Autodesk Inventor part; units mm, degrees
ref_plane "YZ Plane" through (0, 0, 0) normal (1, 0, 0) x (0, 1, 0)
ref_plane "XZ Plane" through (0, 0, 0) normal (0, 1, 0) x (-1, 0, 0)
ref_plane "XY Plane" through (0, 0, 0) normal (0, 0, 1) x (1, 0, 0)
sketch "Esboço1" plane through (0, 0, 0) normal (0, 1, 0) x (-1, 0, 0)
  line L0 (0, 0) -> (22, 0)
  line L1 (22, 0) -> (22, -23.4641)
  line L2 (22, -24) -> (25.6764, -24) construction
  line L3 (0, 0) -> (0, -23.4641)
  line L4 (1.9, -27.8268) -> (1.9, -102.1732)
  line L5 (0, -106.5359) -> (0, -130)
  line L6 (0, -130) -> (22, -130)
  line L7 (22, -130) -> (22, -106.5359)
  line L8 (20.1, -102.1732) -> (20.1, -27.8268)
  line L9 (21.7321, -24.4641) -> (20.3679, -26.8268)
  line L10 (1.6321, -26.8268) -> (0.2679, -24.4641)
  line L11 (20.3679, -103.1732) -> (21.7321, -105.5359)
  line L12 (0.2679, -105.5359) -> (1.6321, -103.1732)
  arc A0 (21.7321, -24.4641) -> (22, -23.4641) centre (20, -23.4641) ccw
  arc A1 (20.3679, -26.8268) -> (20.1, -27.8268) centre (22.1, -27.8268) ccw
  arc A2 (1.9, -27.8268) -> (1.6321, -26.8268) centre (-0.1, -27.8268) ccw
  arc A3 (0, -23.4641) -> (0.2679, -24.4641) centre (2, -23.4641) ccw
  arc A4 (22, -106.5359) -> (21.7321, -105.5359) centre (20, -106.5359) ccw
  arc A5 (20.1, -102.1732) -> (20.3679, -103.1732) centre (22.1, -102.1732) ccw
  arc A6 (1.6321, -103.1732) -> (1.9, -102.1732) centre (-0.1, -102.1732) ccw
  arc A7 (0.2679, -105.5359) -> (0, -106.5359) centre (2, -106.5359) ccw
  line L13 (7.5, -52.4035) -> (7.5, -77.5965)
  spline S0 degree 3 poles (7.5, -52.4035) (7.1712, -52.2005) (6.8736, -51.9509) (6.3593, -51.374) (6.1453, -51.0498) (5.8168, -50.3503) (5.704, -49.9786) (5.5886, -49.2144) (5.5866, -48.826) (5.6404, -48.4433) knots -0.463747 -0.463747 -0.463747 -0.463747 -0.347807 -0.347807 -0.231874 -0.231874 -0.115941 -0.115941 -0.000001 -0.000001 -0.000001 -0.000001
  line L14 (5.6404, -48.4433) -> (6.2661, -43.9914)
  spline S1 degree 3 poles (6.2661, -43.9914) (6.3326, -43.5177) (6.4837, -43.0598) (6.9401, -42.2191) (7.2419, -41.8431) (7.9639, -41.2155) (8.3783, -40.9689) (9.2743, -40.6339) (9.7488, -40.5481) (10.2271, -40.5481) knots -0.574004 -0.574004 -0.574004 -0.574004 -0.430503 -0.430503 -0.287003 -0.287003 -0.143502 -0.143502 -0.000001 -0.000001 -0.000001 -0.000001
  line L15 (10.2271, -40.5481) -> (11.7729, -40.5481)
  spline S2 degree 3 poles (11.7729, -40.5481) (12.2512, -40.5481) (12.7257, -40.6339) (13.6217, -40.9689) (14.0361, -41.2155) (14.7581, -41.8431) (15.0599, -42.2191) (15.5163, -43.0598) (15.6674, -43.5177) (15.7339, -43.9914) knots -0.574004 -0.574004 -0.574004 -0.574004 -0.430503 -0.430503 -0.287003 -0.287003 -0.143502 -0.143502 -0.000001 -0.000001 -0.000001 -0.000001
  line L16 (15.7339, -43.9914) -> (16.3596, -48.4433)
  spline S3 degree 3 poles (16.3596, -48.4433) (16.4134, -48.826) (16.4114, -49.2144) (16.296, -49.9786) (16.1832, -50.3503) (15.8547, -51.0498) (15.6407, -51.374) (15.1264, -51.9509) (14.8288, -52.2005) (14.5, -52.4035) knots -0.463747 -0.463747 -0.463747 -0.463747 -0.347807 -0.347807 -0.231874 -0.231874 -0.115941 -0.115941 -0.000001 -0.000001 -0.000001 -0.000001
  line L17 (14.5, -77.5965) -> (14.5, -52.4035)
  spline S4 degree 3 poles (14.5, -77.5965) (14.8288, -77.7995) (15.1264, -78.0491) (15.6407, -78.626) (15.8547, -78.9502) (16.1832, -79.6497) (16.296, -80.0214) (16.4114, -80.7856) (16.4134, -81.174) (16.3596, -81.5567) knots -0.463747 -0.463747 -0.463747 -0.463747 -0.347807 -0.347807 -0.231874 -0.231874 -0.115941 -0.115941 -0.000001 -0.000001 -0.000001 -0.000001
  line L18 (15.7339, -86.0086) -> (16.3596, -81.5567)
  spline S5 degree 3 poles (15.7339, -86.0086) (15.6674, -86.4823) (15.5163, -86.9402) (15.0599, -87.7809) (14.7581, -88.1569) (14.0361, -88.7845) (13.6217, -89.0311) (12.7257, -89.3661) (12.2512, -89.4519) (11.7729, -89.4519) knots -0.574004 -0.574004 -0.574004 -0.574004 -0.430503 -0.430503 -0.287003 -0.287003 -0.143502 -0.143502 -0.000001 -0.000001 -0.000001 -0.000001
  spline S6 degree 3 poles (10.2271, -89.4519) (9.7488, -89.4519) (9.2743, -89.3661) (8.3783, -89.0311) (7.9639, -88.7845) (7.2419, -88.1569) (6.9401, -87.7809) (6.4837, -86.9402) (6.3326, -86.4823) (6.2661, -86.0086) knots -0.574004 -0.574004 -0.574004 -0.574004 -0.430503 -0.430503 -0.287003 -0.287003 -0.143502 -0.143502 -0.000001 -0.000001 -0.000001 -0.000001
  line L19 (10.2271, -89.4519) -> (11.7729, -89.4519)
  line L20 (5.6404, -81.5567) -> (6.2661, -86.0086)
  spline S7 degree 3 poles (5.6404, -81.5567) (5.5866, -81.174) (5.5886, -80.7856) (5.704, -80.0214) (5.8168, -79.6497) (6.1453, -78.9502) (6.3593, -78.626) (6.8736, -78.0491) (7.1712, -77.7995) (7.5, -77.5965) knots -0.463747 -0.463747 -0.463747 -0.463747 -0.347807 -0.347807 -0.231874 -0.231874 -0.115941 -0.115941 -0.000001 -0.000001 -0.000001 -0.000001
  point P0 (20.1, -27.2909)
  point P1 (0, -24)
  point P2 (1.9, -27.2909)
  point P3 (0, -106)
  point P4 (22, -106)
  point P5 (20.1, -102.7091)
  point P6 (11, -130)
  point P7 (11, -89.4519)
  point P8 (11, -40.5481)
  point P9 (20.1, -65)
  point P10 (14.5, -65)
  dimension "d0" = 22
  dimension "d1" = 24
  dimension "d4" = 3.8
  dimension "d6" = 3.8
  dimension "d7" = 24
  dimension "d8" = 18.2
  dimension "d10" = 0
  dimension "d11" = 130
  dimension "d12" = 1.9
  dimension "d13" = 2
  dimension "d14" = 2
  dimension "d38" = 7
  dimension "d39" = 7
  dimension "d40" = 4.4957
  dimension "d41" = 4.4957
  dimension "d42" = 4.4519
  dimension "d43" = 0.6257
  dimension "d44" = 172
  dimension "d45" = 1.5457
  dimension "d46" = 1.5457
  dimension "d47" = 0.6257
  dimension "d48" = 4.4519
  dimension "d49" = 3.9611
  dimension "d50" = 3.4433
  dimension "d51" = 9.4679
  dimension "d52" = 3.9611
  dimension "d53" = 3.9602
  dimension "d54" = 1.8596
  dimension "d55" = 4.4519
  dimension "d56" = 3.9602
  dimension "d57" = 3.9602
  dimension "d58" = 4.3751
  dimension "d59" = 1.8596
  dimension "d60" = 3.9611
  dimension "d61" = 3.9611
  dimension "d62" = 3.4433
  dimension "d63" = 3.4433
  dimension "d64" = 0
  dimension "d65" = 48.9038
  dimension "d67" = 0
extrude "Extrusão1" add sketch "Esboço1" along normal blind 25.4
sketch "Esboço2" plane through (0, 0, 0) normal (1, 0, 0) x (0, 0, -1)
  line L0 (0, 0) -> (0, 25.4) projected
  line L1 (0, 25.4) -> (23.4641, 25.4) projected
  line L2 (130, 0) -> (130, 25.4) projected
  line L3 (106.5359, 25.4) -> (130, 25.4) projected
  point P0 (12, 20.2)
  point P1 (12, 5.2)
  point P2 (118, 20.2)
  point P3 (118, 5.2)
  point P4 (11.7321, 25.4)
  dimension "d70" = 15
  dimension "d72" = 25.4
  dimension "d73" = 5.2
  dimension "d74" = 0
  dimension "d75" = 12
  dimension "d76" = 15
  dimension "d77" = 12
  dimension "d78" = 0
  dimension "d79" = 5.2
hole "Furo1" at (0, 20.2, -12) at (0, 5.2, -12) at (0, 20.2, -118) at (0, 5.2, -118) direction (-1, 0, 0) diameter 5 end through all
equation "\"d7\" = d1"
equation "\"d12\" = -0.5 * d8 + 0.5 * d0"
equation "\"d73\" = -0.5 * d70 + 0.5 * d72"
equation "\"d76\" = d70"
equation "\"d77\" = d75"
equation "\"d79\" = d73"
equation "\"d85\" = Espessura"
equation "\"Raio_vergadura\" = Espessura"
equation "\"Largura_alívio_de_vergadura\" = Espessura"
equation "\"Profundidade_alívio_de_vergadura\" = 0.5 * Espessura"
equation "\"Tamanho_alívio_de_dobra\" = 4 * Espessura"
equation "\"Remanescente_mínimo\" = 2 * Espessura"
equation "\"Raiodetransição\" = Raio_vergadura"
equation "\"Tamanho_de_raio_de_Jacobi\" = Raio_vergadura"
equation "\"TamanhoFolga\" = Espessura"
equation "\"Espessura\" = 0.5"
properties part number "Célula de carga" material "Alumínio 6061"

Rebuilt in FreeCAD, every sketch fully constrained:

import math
import FreeCAD as App
import Part
import Sketcher
from FreeCAD import Vector

doc = App.newDocument("Part")
body = doc.addObject("PartDesign::Body", "Body")

sketch1 = body.newObject("Sketcher::SketchObject", "Sketch")
sketch1.AttachmentSupport = (doc.getObject("XZ_Plane"), [""])
sketch1.MapMode = "FlatFace"
sketch1.addGeometry(Part.LineSegment(Vector(-22, 0, 0), Vector(0, 0, 0)), False)
sketch1.addGeometry(Part.LineSegment(Vector(0, 0, 0), Vector(0, -23.4641, 0)), False)
sketch1.addGeometry(Part.ArcOfCircle(Part.Circle(Vector(-2, -23.4641, 0), Vector(0, 0, 1), 2), math.radians(-29.999295), math.radians(0)), False)
sketch1.addGeometry(Part.LineSegment(Vector(-0.2679, -24.4641, 0), Vector(-1.6321, -26.8268, 0)), False)
sketch1.addGeometry(Part.ArcOfCircle(Part.Circle(Vector(0.1, -27.8268, 0), Vector(0, 0, 1), 2), math.radians(150.000705), math.radians(180)), False)
sketch1.addGeometry(Part.LineSegment(Vector(-1.9, -27.8268, 0), Vector(-1.9, -102.1732, 0)), False)
sketch1.addGeometry(Part.ArcOfCircle(Part.Circle(Vector(0.1, -102.1732, 0), Vector(0, 0, 1), 2.000043), math.radians(180), math.radians(209.999295)), False)
sketch1.addGeometry(Part.LineSegment(Vector(-1.6321, -103.1732, 0), Vector(-0.2679, -105.5359, 0)), False)
sketch1.addGeometry(Part.ArcOfCircle(Part.Circle(Vector(-2, -106.5359, 0), Vector(0, 0, 1), 2.000043), math.radians(0), math.radians(29.999295)), False)
sketch1.addGeometry(Part.LineSegment(Vector(0, -106.5359, 0), Vector(0, -130, 0)), False)
sketch1.addGeometry(Part.LineSegment(Vector(0, -130, 0), Vector(-22, -130, 0)), False)
sketch1.addGeometry(Part.LineSegment(Vector(-22, -130, 0), Vector(-22, -106.5359, 0)), False)
sketch1.addGeometry(Part.ArcOfCircle(Part.Circle(Vector(-20, -106.5359, 0), Vector(0, 0, 1), 2), math.radians(150.000705), math.radians(180)), False)
sketch1.addGeometry(Part.LineSegment(Vector(-21.7321, -105.5359, 0), Vector(-20.3679, -103.1732, 0)), False)
sketch1.addGeometry(Part.ArcOfCircle(Part.Circle(Vector(-22.1, -102.1732, 0), Vector(0, 0, 1), 2), math.radians(-29.999295), math.radians(0)), False)
sketch1.addGeometry(Part.LineSegment(Vector(-20.1, -102.1732, 0), Vector(-20.1, -27.8268, 0)), False)
sketch1.addGeometry(Part.ArcOfCircle(Part.Circle(Vector(-22.1, -27.8268, 0), Vector(0, 0, 1), 2.000043), math.radians(0), math.radians(29.999295)), False)
sketch1.addGeometry(Part.LineSegment(Vector(-20.3679, -26.8268, 0), Vector(-21.7321, -24.4641, 0)), False)
sketch1.addGeometry(Part.ArcOfCircle(Part.Circle(Vector(-20, -23.4641, 0), Vector(0, 0, 1), 2.000043), math.radians(180), math.radians(209.999295)), False)
sketch1.addGeometry(Part.LineSegment(Vector(-22, -23.4641, 0), Vector(-22, 0, 0)), False)
sketch1.addGeometry(Part.LineSegment(Vector(-7.5, -77.5965, 0), Vector(-7.5, -52.4035, 0)), False)
sketch1.addGeometry(Part.BSplineCurve([Vector(-7.5, -52.4035, 0), Vector(-7.1712, -52.2005, 0), Vector(-6.8736, -51.9509, 0), Vector(-6.3593, -51.374, 0), Vector(-6.1453, -51.0498, 0), Vector(-5.8168, -50.3503, 0), Vector(-5.704, -49.9786, 0), Vector(-5.5886, -49.2144, 0), Vector(-5.5866, -48.826, 0), Vector(-5.6404, -48.4433, 0)], [4, 2, 2, 2, 4], [-0.463747, -0.347807, -0.231874, -0.115941, -0.000001], False, 3, [1, 1, 1, 1, 1, 1, 1, 1, 1, 1], False), False)
sketch1.addGeometry(Part.LineSegment(Vector(-5.6404, -48.4433, 0), Vector(-6.2661, -43.9914, 0)), False)
sketch1.addGeometry(Part.BSplineCurve([Vector(-6.2661, -43.9914, 0), Vector(-6.3326, -43.5177, 0), Vector(-6.4837, -43.0598, 0), Vector(-6.9401, -42.2191, 0), Vector(-7.2419, -41.8431, 0), Vector(-7.9639, -41.2155, 0), Vector(-8.3783, -40.9689, 0), Vector(-9.2743, -40.6339, 0), Vector(-9.7488, -40.5481, 0), Vector(-10.2271, -40.5481, 0)], [4, 2, 2, 2, 4], [-0.574004, -0.430503, -0.287003, -0.143502, -0.000001], False, 3, [1, 1, 1, 1, 1, 1, 1, 1, 1, 1], False), False)
sketch1.addGeometry(Part.LineSegment(Vector(-10.2271, -40.5481, 0), Vector(-11.7729, -40.5481, 0)), False)
sketch1.addGeometry(Part.BSplineCurve([Vector(-11.7729, -40.5481, 0), Vector(-12.2512, -40.5481, 0), Vector(-12.7257, -40.6339, 0), Vector(-13.6217, -40.9689, 0), Vector(-14.0361, -41.2155, 0), Vector(-14.7581, -41.8431, 0), Vector(-15.0599, -42.2191, 0), Vector(-15.5163, -43.0598, 0), Vector(-15.6674, -43.5177, 0), Vector(-15.7339, -43.9914, 0)], [4, 2, 2, 2, 4], [-0.574004, -0.430503, -0.287003, -0.143502, -0.000001], False, 3, [1, 1, 1, 1, 1, 1, 1, 1, 1, 1], False), False)
sketch1.addGeometry(Part.LineSegment(Vector(-15.7339, -43.9914, 0), Vector(-16.3596, -48.4433, 0)), False)
sketch1.addGeometry(Part.BSplineCurve([Vector(-16.3596, -48.4433, 0), Vector(-16.4134, -48.826, 0), Vector(-16.4114, -49.2144, 0), Vector(-16.296, -49.9786, 0), Vector(-16.1832, -50.3503, 0), Vector(-15.8547, -51.0498, 0), Vector(-15.6407, -51.374, 0), Vector(-15.1264, -51.9509, 0), Vector(-14.8288, -52.2005, 0), Vector(-14.5, -52.4035, 0)], [4, 2, 2, 2, 4], [-0.463747, -0.347807, -0.231874, -0.115941, -0.000001], False, 3, [1, 1, 1, 1, 1, 1, 1, 1, 1, 1], False), False)
sketch1.addGeometry(Part.LineSegment(Vector(-14.5, -52.4035, 0), Vector(-14.5, -77.5965, 0)), False)
sketch1.addGeometry(Part.BSplineCurve([Vector(-14.5, -77.5965, 0), Vector(-14.8288, -77.7995, 0), Vector(-15.1264, -78.0491, 0), Vector(-15.6407, -78.626, 0), Vector(-15.8547, -78.9502, 0), Vector(-16.1832, -79.6497, 0), Vector(-16.296, -80.0214, 0), Vector(-16.4114, -80.7856, 0), Vector(-16.4134, -81.174, 0), Vector(-16.3596, -81.5567, 0)], [4, 2, 2, 2, 4], [-0.463747, -0.347807, -0.231874, -0.115941, -0.000001], False, 3, [1, 1, 1, 1, 1, 1, 1, 1, 1, 1], False), False)
sketch1.addGeometry(Part.LineSegment(Vector(-16.3596, -81.5567, 0), Vector(-15.7339, -86.0086, 0)), False)
sketch1.addGeometry(Part.BSplineCurve([Vector(-15.7339, -86.0086, 0), Vector(-15.6674, -86.4823, 0), Vector(-15.5163, -86.9402, 0), Vector(-15.0599, -87.7809, 0), Vector(-14.7581, -88.1569, 0), Vector(-14.0361, -88.7845, 0), Vector(-13.6217, -89.0311, 0), Vector(-12.7257, -89.3661, 0), Vector(-12.2512, -89.4519, 0), Vector(-11.7729, -89.4519, 0)], [4, 2, 2, 2, 4], [-0.574004, -0.430503, -0.287003, -0.143502, -0.000001], False, 3, [1, 1, 1, 1, 1, 1, 1, 1, 1, 1], False), False)
sketch1.addGeometry(Part.LineSegment(Vector(-11.7729, -89.4519, 0), Vector(-10.2271, -89.4519, 0)), False)
sketch1.addGeometry(Part.BSplineCurve([Vector(-10.2271, -89.4519, 0), Vector(-9.7488, -89.4519, 0), Vector(-9.2743, -89.3661, 0), Vector(-8.3783, -89.0311, 0), Vector(-7.9639, -88.7845, 0), Vector(-7.2419, -88.1569, 0), Vector(-6.9401, -87.7809, 0), Vector(-6.4837, -86.9402, 0), Vector(-6.3326, -86.4823, 0), Vector(-6.2661, -86.0086, 0)], [4, 2, 2, 2, 4], [-0.574004, -0.430503, -0.287003, -0.143502, -0.000001], False, 3, [1, 1, 1, 1, 1, 1, 1, 1, 1, 1], False), False)
sketch1.addGeometry(Part.LineSegment(Vector(-6.2661, -86.0086, 0), Vector(-5.6404, -81.5567, 0)), False)
sketch1.addGeometry(Part.BSplineCurve([Vector(-5.6404, -81.5567, 0), Vector(-5.5866, -81.174, 0), Vector(-5.5886, -80.7856, 0), Vector(-5.704, -80.0214, 0), Vector(-5.8168, -79.6497, 0), Vector(-6.1453, -78.9502, 0), Vector(-6.3593, -78.626, 0), Vector(-6.8736, -78.0491, 0), Vector(-7.1712, -77.7995, 0), Vector(-7.5, -77.5965, 0)], [4, 2, 2, 2, 4], [-0.463747, -0.347807, -0.231874, -0.115941, -0.000001], False, 3, [1, 1, 1, 1, 1, 1, 1, 1, 1, 1], False), False)
sketch1.addConstraint(Sketcher.Constraint("Block", 21))
sketch1.addConstraint(Sketcher.Constraint("Block", 23))
sketch1.addConstraint(Sketcher.Constraint("Block", 25))
sketch1.addConstraint(Sketcher.Constraint("Block", 27))
sketch1.addConstraint(Sketcher.Constraint("Block", 29))
sketch1.addConstraint(Sketcher.Constraint("Block", 31))
sketch1.addConstraint(Sketcher.Constraint("Block", 33))
sketch1.addConstraint(Sketcher.Constraint("Block", 35))
sketch1.addConstraint(Sketcher.Constraint("Coincident", 0, 2, 1, 1))
sketch1.addConstraint(Sketcher.Constraint("Tangent", 1, 2, 2, 2))
sketch1.addConstraint(Sketcher.Constraint("Tangent", 2, 1, 3, 1))
sketch1.addConstraint(Sketcher.Constraint("Tangent", 3, 2, 4, 1))
sketch1.addConstraint(Sketcher.Constraint("Tangent", 4, 2, 5, 1))
sketch1.addConstraint(Sketcher.Constraint("Tangent", 5, 2, 6, 1))
sketch1.addConstraint(Sketcher.Constraint("Tangent", 6, 2, 7, 1))
sketch1.addConstraint(Sketcher.Constraint("Tangent", 7, 2, 8, 2))
sketch1.addConstraint(Sketcher.Constraint("Tangent", 8, 1, 9, 1))
sketch1.addConstraint(Sketcher.Constraint("Coincident", 9, 2, 10, 1))
sketch1.addConstraint(Sketcher.Constraint("Coincident", 10, 2, 11, 1))
sketch1.addConstraint(Sketcher.Constraint("Tangent", 11, 2, 12, 2))
sketch1.addConstraint(Sketcher.Constraint("Tangent", 12, 1, 13, 1))
sketch1.addConstraint(Sketcher.Constraint("Tangent", 13, 2, 14, 1))
sketch1.addConstraint(Sketcher.Constraint("Tangent", 14, 2, 15, 1))
sketch1.addConstraint(Sketcher.Constraint("Tangent", 15, 2, 16, 1))
sketch1.addConstraint(Sketcher.Constraint("Tangent", 16, 2, 17, 1))
sketch1.addConstraint(Sketcher.Constraint("Tangent", 17, 2, 18, 2))
sketch1.addConstraint(Sketcher.Constraint("Tangent", 18, 1, 19, 1))
sketch1.addConstraint(Sketcher.Constraint("Coincident", 19, 2, 0, 1))
sketch1.addConstraint(Sketcher.Constraint("Coincident", 20, 2, 21, 1))
sketch1.addConstraint(Sketcher.Constraint("Coincident", 21, 2, 22, 1))
sketch1.addConstraint(Sketcher.Constraint("Coincident", 22, 2, 23, 1))
sketch1.addConstraint(Sketcher.Constraint("Coincident", 23, 2, 24, 1))
sketch1.addConstraint(Sketcher.Constraint("Coincident", 24, 2, 25, 1))
sketch1.addConstraint(Sketcher.Constraint("Coincident", 25, 2, 26, 1))
sketch1.addConstraint(Sketcher.Constraint("Coincident", 26, 2, 27, 1))
sketch1.addConstraint(Sketcher.Constraint("Coincident", 27, 2, 28, 1))
sketch1.addConstraint(Sketcher.Constraint("Coincident", 28, 2, 29, 1))
sketch1.addConstraint(Sketcher.Constraint("Coincident", 29, 2, 30, 1))
sketch1.addConstraint(Sketcher.Constraint("Coincident", 30, 2, 31, 1))
sketch1.addConstraint(Sketcher.Constraint("Coincident", 31, 2, 32, 1))
sketch1.addConstraint(Sketcher.Constraint("Coincident", 32, 2, 33, 1))
sketch1.addConstraint(Sketcher.Constraint("Coincident", 33, 2, 34, 1))
sketch1.addConstraint(Sketcher.Constraint("Coincident", 34, 2, 35, 1))
sketch1.addConstraint(Sketcher.Constraint("Coincident", 35, 2, 20, 1))
sketch1.addConstraint(Sketcher.Constraint("Horizontal", 0))
sketch1.addConstraint(Sketcher.Constraint("Vertical", 1))
sketch1.addConstraint(Sketcher.Constraint("Vertical", 5))
sketch1.addConstraint(Sketcher.Constraint("Vertical", 9))
sketch1.addConstraint(Sketcher.Constraint("Horizontal", 10))
sketch1.addConstraint(Sketcher.Constraint("Vertical", 11))
sketch1.addConstraint(Sketcher.Constraint("Vertical", 15))
sketch1.addConstraint(Sketcher.Constraint("Vertical", 19))
sketch1.addConstraint(Sketcher.Constraint("Coincident", 0, 2, -1, 1))
sketch1.addConstraint(Sketcher.Constraint("Equal", 2, 4))
sketch1.addConstraint(Sketcher.Constraint("Equal", 4, 6))
sketch1.addConstraint(Sketcher.Constraint("Equal", 6, 8))
sketch1.addConstraint(Sketcher.Constraint("Equal", 8, 12))
sketch1.addConstraint(Sketcher.Constraint("Equal", 12, 14))
sketch1.addConstraint(Sketcher.Constraint("Equal", 14, 16))
sketch1.addConstraint(Sketcher.Constraint("Equal", 16, 18))
sketch1.addConstraint(Sketcher.Constraint("PointOnObject", 8, 1, -2))
sketch1.addConstraint(Sketcher.Constraint("Parallel", 3, 13))
sketch1.addConstraint(Sketcher.Constraint("Parallel", 7, 17))
sketch1.addConstraint(Sketcher.Constraint("Horizontal", 8, 3, 12, 3))
sketch1.addConstraint(Sketcher.Constraint("Horizontal", 6, 3, 14, 3))
sketch1.addConstraint(Sketcher.Constraint("Horizontal", 4, 3, 16, 3))
sketch1.addConstraint(Sketcher.Constraint("Horizontal", 2, 3, 18, 3))
sketch1.addConstraint(Sketcher.Constraint("Horizontal", 7, 2, 12, 1))
sketch1.addConstraint(Sketcher.Constraint("Equal", 1, 9))
sketch1.addConstraint(Sketcher.Constraint("Radius", 2, 2.0))
sketch1.addConstraint(Sketcher.Constraint("DistanceX", 0, 1, 0, 2, 22.0))
sketch1.addConstraint(Sketcher.Constraint("DistanceY", 9, 2, -1, 1, 130.0))
sketch1.addConstraint(Sketcher.Constraint("DistanceX", 4, 2, -1, 1, 1.9))
sketch1.addConstraint(Sketcher.Constraint("DistanceY", 2, 1, 1, 2, 1.0))
sketch1.addConstraint(Sketcher.Constraint("DistanceY", 1, 2, 1, 1, 23.464))
pad1 = body.newObject("PartDesign::Pad", "Pad")
pad1.Profile = sketch1
pad1.Length = 25.4
pad1.Reversed = True

sketch2 = body.newObject("Sketcher::SketchObject", "Sketch001")
sketch2.AttachmentSupport = (doc.getObject("YZ_Plane"), [""])
sketch2.MapMode = "FlatFace"
sketch2.addGeometry(Part.Circle(Vector(20.2, -12, 0), Vector(0, 0, 1), 2.5), False)
sketch2.addGeometry(Part.Circle(Vector(5.2, -12, 0), Vector(0, 0, 1), 2.5), False)
sketch2.addGeometry(Part.Circle(Vector(20.2, -118, 0), Vector(0, 0, 1), 2.5), False)
sketch2.addGeometry(Part.Circle(Vector(5.2, -118, 0), Vector(0, 0, 1), 2.5), False)
sketch2.addConstraint(Sketcher.Constraint("Equal", 0, 1))
sketch2.addConstraint(Sketcher.Constraint("Equal", 1, 2))
sketch2.addConstraint(Sketcher.Constraint("Equal", 2, 3))
sketch2.addConstraint(Sketcher.Constraint("Horizontal", 0, 3, 1, 3))
sketch2.addConstraint(Sketcher.Constraint("Horizontal", 2, 3, 3, 3))
sketch2.addConstraint(Sketcher.Constraint("Vertical", 0, 3, 2, 3))
sketch2.addConstraint(Sketcher.Constraint("Vertical", 1, 3, 3, 3))
sketch2.addConstraint(Sketcher.Constraint("Diameter", 0, 5.0))
sketch2.addConstraint(Sketcher.Constraint("DistanceY", 0, 3, -1, 1, 12.0))
sketch2.addConstraint(Sketcher.Constraint("DistanceY", 2, 3, -1, 1, 118.0))
sketch2.addConstraint(Sketcher.Constraint("DistanceX", 1, 3, 0, 3, 15.0))
sketch2.addConstraint(Sketcher.Constraint("DistanceX", -1, 1, 0, 3, 20.2))
doc.recompute()
hole = body.newObject("PartDesign::Hole", "Hole")
hole.Profile = sketch2
hole.ThreadType = "None"
hole.Diameter = 5
hole.DepthType = "ThroughAll"

doc.recompute()
